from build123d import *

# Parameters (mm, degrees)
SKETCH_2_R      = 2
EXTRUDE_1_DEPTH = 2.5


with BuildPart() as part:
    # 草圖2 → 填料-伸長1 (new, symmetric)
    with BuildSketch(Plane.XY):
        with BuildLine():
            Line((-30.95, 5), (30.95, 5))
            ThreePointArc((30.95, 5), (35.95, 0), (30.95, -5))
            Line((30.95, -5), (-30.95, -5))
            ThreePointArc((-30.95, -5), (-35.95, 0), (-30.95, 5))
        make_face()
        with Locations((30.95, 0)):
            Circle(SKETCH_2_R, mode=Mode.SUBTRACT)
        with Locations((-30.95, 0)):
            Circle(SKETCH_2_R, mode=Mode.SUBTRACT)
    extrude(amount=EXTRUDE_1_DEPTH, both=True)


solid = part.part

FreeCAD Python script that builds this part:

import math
import FreeCAD as App
import Part
import Sketcher
from FreeCAD import Vector
Q = App.Units.Quantity

doc = App.newDocument("Part")
body = doc.addObject("PartDesign::Body", "Body")

# Sketch on XY plane
sketch1 = doc.addObject("Sketcher::SketchObject", "Sketch")
body.addObject(sketch1)
sketch1.AttachmentSupport = (doc.XY_Plane, [""])
sketch1.MapMode = "FlatFace"
sketch1.addGeometry([
    Part.LineSegment(Vector(30.95, 5, 0), Vector(-30.95, 5, 0)),  # 0
    Part.ArcOfCircle(Part.Circle(Vector(-30.95, 0, 0), Vector(0, 0, 1), 5), math.radians(90), math.radians(270)),  # 1
    Part.LineSegment(Vector(-30.95, -5, 0), Vector(30.95, -5, 0)),  # 2
    Part.ArcOfCircle(Part.Circle(Vector(30.95, 0, 0), Vector(0, 0, 1), 5), math.radians(-90), math.radians(90)),  # 3
    Part.Circle(Vector(30.95, 0, 0), Vector(0, 0, 1), 2),  # 4
    Part.Circle(Vector(-30.95, 0, 0), Vector(0, 0, 1), 2),  # 5
], False)
sketch1.addConstraint([
    Sketcher.Constraint("Tangent", 0, 2, 1, 1),
    Sketcher.Constraint("Tangent", 1, 2, 2, 1),
    Sketcher.Constraint("Tangent", 2, 2, 3, 1),
    Sketcher.Constraint("Tangent", 3, 2, 0, 1),
    Sketcher.Constraint("Horizontal", 0),
    Sketcher.Constraint("Horizontal", 2),
    Sketcher.Constraint("Coincident", 4, 3, 3, 3),
    Sketcher.Constraint("Coincident", 5, 3, 1, 3),
    Sketcher.Constraint("Equal", 4, 5),
    Sketcher.Constraint("Symmetric", 1, 3, 3, 3, -1, 1),
    Sketcher.Constraint("Diameter", 4, Q("4 mm")),
    Sketcher.Constraint("Radius", 1, Q("5 mm")),
    Sketcher.Constraint("DistanceX", 0, 2, 0, 1, Q("61.9 mm")),
])
pad1 = doc.addObject("PartDesign::Pad", "Pad")
body.addObject(pad1)
pad1.Profile = sketch1
pad1.Length = 5
pad1.Midplane = True

doc.recompute()
